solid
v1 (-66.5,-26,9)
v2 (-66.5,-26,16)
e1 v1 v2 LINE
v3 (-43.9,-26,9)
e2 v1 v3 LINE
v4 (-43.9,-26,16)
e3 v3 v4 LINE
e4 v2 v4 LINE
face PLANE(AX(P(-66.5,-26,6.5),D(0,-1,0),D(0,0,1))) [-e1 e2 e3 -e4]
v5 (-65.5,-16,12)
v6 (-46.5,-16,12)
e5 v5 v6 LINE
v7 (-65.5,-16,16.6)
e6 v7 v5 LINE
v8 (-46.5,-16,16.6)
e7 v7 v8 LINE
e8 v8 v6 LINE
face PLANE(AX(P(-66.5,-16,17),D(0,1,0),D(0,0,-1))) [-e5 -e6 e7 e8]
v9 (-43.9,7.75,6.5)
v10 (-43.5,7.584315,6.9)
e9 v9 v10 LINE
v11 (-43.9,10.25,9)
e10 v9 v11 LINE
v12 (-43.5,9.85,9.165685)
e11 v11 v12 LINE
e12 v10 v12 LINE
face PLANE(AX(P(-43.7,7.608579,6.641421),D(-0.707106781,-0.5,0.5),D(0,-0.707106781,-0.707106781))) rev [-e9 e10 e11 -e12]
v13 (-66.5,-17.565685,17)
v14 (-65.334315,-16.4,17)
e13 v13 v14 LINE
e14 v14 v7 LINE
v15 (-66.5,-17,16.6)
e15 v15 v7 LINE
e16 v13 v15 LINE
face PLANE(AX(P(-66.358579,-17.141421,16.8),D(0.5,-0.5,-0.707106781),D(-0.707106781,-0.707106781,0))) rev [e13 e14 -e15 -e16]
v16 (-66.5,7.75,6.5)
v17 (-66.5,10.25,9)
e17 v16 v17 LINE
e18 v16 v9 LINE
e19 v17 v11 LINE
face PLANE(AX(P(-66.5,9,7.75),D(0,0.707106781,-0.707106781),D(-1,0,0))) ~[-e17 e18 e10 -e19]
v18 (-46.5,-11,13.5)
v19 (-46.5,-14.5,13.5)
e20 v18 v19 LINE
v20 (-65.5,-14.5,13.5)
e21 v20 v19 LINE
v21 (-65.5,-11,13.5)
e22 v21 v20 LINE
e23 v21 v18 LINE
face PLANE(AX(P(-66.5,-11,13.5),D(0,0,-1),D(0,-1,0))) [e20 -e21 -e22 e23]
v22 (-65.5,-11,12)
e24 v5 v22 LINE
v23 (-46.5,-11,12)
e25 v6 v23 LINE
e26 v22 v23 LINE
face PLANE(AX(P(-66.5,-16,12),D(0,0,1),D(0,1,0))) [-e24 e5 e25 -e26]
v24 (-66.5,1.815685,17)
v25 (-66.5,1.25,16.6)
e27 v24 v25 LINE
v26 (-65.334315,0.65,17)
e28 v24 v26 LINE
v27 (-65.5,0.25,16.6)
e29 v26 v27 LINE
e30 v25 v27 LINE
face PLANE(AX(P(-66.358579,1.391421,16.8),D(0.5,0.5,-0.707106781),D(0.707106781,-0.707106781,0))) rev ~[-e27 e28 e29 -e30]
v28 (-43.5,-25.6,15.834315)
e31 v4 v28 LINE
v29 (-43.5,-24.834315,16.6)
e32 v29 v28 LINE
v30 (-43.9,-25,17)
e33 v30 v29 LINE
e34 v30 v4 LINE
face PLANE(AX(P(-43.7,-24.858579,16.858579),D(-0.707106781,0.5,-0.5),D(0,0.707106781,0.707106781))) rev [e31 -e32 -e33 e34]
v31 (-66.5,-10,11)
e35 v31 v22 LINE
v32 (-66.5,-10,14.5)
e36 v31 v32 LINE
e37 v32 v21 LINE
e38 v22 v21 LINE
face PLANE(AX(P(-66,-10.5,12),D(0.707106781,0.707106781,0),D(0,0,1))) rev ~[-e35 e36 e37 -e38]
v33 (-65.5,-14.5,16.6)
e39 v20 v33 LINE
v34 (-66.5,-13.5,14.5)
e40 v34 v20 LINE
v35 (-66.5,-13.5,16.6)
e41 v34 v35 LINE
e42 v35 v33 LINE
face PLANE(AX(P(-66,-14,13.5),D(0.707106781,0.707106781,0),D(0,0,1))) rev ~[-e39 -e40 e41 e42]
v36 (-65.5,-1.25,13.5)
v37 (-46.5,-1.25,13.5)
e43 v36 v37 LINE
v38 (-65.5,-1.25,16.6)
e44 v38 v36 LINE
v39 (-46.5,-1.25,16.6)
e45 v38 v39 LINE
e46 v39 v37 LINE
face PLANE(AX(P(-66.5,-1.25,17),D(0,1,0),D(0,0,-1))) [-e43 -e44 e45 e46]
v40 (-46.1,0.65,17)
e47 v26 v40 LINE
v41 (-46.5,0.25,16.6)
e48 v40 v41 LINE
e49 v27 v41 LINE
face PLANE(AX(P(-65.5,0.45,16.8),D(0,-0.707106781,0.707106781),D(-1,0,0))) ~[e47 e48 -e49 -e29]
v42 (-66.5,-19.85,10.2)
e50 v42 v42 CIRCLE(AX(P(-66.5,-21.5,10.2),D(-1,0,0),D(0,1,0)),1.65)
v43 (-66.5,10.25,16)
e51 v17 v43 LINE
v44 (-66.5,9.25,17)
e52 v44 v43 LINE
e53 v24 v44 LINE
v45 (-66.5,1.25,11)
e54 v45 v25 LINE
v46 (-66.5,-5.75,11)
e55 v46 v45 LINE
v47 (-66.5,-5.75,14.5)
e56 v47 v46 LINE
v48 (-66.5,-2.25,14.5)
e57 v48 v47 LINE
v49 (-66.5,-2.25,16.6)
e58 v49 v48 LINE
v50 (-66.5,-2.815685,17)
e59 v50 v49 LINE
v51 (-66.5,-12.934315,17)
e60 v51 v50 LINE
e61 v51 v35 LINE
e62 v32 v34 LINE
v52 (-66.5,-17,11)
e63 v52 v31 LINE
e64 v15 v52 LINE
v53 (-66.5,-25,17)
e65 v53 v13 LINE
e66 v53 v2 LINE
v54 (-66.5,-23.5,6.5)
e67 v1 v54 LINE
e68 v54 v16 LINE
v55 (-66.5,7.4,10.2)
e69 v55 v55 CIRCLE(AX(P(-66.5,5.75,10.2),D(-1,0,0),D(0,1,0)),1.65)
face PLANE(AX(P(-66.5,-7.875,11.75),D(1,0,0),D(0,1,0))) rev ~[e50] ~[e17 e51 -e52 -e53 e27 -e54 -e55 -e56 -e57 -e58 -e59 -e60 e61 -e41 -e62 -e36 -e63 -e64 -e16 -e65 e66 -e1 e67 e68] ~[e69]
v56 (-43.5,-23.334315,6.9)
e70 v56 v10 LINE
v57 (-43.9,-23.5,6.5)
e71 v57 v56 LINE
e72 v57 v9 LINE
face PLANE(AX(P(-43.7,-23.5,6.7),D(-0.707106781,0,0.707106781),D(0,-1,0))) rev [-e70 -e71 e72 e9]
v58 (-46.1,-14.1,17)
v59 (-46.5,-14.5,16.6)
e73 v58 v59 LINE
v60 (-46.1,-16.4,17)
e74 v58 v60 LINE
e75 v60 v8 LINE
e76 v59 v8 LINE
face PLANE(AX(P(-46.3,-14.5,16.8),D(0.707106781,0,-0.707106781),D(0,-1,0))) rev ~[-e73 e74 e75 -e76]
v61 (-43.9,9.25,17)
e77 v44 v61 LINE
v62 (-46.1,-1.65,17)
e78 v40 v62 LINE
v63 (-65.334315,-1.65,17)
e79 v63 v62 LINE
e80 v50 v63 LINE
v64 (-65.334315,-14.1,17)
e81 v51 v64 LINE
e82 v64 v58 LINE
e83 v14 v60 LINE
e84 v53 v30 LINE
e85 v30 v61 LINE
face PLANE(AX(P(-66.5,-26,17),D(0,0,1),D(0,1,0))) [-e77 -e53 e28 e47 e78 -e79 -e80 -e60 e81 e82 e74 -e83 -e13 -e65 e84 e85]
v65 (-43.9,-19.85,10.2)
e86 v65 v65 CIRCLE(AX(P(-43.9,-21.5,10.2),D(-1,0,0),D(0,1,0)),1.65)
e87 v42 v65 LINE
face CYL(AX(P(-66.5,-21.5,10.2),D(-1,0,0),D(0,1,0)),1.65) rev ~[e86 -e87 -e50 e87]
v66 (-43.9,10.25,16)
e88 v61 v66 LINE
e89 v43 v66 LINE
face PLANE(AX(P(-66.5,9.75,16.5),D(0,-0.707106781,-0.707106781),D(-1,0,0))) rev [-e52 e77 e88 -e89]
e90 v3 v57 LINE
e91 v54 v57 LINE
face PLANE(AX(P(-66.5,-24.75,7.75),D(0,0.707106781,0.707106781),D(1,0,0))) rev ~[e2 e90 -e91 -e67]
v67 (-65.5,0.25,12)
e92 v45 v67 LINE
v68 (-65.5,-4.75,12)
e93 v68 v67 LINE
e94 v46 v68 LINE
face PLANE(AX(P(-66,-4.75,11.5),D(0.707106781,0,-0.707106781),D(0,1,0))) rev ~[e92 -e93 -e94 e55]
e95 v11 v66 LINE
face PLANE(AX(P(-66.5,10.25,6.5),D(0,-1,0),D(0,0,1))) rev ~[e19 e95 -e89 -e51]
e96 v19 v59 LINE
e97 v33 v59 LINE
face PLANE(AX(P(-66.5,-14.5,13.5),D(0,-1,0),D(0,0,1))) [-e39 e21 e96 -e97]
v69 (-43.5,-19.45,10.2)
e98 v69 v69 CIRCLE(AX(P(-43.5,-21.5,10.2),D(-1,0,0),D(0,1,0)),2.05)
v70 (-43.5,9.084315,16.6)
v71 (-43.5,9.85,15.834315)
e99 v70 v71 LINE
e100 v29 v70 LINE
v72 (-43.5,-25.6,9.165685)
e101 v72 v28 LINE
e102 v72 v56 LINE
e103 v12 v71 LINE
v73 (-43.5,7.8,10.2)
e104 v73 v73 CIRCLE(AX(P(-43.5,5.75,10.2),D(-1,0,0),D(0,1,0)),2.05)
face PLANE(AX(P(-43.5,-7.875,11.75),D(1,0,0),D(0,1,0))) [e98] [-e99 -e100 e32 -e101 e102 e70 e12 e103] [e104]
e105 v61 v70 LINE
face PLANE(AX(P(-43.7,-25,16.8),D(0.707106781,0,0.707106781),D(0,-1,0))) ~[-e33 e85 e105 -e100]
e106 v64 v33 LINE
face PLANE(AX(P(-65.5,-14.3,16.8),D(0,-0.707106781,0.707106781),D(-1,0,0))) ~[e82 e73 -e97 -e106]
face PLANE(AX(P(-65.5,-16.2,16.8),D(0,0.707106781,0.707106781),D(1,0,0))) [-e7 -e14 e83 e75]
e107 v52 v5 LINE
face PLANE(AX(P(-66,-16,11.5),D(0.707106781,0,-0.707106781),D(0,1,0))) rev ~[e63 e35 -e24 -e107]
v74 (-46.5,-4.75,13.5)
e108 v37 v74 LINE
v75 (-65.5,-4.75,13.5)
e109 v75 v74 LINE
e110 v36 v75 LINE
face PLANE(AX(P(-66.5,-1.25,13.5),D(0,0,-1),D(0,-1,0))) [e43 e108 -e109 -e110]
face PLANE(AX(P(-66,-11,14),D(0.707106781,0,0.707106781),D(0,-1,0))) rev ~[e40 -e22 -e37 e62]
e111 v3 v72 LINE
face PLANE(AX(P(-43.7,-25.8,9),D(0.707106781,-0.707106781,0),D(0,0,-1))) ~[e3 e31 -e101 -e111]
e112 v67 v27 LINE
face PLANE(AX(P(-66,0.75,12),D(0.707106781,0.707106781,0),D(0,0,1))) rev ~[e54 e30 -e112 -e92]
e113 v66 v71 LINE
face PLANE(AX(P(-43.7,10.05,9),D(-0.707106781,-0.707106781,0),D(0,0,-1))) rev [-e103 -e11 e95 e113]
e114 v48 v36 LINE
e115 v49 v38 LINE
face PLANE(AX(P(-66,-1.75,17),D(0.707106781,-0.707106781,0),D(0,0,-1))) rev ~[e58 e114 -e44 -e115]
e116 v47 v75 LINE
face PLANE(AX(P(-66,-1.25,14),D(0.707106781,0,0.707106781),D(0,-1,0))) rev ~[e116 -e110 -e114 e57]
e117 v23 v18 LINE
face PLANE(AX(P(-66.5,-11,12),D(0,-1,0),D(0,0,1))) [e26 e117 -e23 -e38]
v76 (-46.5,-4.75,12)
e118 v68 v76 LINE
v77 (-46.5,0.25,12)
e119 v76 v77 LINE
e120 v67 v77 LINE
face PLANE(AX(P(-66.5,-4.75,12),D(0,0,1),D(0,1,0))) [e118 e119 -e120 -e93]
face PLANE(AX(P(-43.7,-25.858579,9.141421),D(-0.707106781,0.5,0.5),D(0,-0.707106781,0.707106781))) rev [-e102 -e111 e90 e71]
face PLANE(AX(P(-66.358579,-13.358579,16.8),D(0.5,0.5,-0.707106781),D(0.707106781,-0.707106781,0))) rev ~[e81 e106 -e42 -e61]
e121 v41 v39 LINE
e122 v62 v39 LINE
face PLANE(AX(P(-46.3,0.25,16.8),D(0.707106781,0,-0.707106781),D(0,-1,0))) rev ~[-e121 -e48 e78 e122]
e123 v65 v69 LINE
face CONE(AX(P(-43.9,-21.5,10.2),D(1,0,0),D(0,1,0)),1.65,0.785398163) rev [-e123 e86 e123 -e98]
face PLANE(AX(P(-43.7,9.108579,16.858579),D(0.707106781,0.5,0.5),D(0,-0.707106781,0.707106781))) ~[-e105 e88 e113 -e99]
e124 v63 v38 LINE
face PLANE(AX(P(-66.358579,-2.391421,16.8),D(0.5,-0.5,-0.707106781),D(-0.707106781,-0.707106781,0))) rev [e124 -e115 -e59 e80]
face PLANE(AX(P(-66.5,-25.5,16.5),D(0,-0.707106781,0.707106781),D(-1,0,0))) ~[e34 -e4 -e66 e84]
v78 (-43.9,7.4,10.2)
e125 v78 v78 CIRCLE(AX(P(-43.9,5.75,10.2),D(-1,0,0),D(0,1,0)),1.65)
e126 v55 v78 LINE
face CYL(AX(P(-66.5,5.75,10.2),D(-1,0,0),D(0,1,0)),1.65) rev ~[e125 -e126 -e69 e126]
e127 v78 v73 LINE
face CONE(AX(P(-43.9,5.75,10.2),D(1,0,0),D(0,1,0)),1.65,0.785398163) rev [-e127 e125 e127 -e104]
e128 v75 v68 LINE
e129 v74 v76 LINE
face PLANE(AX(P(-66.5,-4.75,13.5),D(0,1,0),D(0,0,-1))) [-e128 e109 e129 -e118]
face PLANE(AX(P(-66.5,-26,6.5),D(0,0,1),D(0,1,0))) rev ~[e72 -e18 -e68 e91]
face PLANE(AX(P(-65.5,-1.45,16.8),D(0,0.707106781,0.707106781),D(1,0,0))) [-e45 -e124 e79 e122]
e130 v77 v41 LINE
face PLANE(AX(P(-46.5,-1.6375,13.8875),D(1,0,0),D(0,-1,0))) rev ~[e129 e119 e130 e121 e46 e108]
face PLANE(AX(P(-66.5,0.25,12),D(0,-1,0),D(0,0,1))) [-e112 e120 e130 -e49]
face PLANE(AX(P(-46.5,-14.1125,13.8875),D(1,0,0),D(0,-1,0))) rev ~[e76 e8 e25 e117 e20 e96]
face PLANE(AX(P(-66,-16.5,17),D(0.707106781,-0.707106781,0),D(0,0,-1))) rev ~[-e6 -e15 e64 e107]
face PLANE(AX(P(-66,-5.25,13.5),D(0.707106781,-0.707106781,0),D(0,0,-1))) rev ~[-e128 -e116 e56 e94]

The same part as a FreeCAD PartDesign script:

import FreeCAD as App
import Part
import Sketcher
from FreeCAD import Vector


def edges_at(feature, points):
    """Names of the edges that pass closest to the given points."""
    edges = feature.Shape.Edges
    near = lambda p: min(range(len(edges)), key=lambda i: edges[i].distToShape(Part.Vertex(*p))[0])
    return sorted({f"Edge{near(p) + 1}" for p in points})


def add_polygon(sketch, points):
    """Adds a closed chain of lines whose ends are joined by coincident constraints."""
    first, n = sketch.GeometryCount, len(points)
    for a, b in zip(points, points[1:] + points[:1]):
        sketch.addGeometry(Part.LineSegment(App.Vector(*a, 0), App.Vector(*b, 0)), False)
    for i in range(n):
        sketch.addConstraint(Sketcher.Constraint("Coincident", first + i, 2, first + (i + 1) % n, 1))

doc = App.newDocument("Part")
params = doc.addObject("Spreadsheet::Sheet", "Params")
for row, (alias, value) in enumerate([
    ("sketch1_height", "10.5 mm"),
    ("sketch1_width", "36.25 mm"),
    ("pad1_length", "23 mm"),
    ("sketch2_diameter", "3.3 mm"),
    ("sketch3_width", "5 mm"),
    ("sketch3_width2", "1.5 mm"),
    ("pocket2_length", "20 mm"),
    ("chamfer_size", "1 mm"),
    ("chamfer2_size", "1 mm"),
    ("chamfer3_size", "2.5 mm"),
    ("chamfer4_size", "0.4 mm"),
    ("chamfer5_size", "0.4 mm"),
], start=1):
    params.set(f"A{row}", alias)
    params.set(f"B{row}", "=" + value)
    params.setAlias(f"B{row}", alias)

body = doc.addObject("PartDesign::Body", "Body")

# Sketch on YZ plane
sketch1 = body.newObject("Sketcher::SketchObject", "Sketch")
sketch1.AttachmentSupport = (doc.getObject("YZ_Plane"), [""])
sketch1.MapMode = "FlatFace"
add_polygon(sketch1, [(0, 10), (0, 0), (36, 0), (36, 10)])  # lines 0-3
sketch1.addConstraint(Sketcher.Constraint("Vertical", 0))
sketch1.addConstraint(Sketcher.Constraint("Horizontal", 1))
sketch1.addConstraint(Sketcher.Constraint("Vertical", 2))
sketch1.addConstraint(Sketcher.Constraint("Horizontal", 3))
sketch1.addConstraint(Sketcher.Constraint("Coincident", 0, 2, -1, 1))
sketch1.addConstraint(Sketcher.Constraint("DistanceY", 0, 2, 0, 1, 10.5))
sketch1.addConstraint(Sketcher.Constraint("DistanceX", 1, 1, 1, 2, 36.25))
sketch1.setExpression("Constraints[9]", "Params.sketch1_height")
sketch1.setExpression("Constraints[10]", "Params.sketch1_width")
pad1 = body.newObject("PartDesign::Pad", "Pad")
pad1.Profile = sketch1
pad1.setExpression("Length", "Params.pad1_length")

# Sketch on YZ plane
sketch2 = body.newObject("Sketcher::SketchObject", "Sketch001")
sketch2.AttachmentSupport = (doc.getObject("YZ_Plane"), [""])
sketch2.MapMode = "FlatFace"
sketch2.addGeometry(Part.Circle(Vector(4.5, 3.7, 0), Vector(0, 0, 1), 1.6), False)
sketch2.addGeometry(Part.Circle(Vector(31.8, 3.7, 0), Vector(0, 0, 1), 1.6), False)
sketch2.addConstraint(Sketcher.Constraint("Equal", 0, 1))
sketch2.addConstraint(Sketcher.Constraint("Horizontal", 0, 3, 1, 3))
sketch2.addConstraint(Sketcher.Constraint("Diameter", 0, 3.3))
sketch2.addConstraint(Sketcher.Constraint("DistanceX", -1, 1, 0, 3, 4.5))
sketch2.addConstraint(Sketcher.Constraint("DistanceY", -1, 1, 0, 3, 3.7))
sketch2.addConstraint(Sketcher.Constraint("DistanceX", -1, 1, 1, 3, 31.75))
sketch2.setExpression("Constraints[2]", "Params.sketch2_diameter")
pocket1 = body.newObject("PartDesign::Pocket", "Pocket")
pocket1.Profile = sketch2
pocket1.Type = "ThroughAll"
pocket1.Reversed = True

# Sketch on YZ plane
sketch3 = body.newObject("Sketcher::SketchObject", "Sketch002")
sketch3.AttachmentSupport = (doc.getObject("YZ_Plane"), [""])
sketch3.MapMode = "FlatFace"
add_polygon(sketch3, [(10, 5.5), (10, 10.5), (11.5, 10.5), (11.5, 7), (15, 7), (15, 5.5)])  # lines 0-5
add_polygon(sketch3, [(24.8, 7), (24.8, 10.5), (26.2, 10.5), (26.2, 5.5), (21.2, 5.5), (21.2, 7)])  # lines 6-11
sketch3.addConstraint(Sketcher.Constraint("Vertical", 0))
sketch3.addConstraint(Sketcher.Constraint("Horizontal", 1))
sketch3.addConstraint(Sketcher.Constraint("Vertical", 2))
sketch3.addConstraint(Sketcher.Constraint("Horizontal", 3))
sketch3.addConstraint(Sketcher.Constraint("Vertical", 4))
sketch3.addConstraint(Sketcher.Constraint("Horizontal", 5))
sketch3.addConstraint(Sketcher.Constraint("Vertical", 6))
sketch3.addConstraint(Sketcher.Constraint("Horizontal", 7))
sketch3.addConstraint(Sketcher.Constraint("Vertical", 8))
sketch3.addConstraint(Sketcher.Constraint("Horizontal", 9))
sketch3.addConstraint(Sketcher.Constraint("Vertical", 10))
sketch3.addConstraint(Sketcher.Constraint("Horizontal", 11))
sketch3.addConstraint(Sketcher.Constraint("Horizontal", 1, 2, 6, 2))
sketch3.addConstraint(Sketcher.Constraint("Horizontal", 5, 2, 8, 2))
sketch3.addConstraint(Sketcher.Constraint("Horizontal", 3, 2, 10, 2))
sketch3.addConstraint(Sketcher.Constraint("Equal", 1, 7))
sketch3.addConstraint(Sketcher.Constraint("Equal", 5, 9))
sketch3.addConstraint(Sketcher.Constraint("Equal", 9, 0))
sketch3.addConstraint(Sketcher.Constraint("Equal", 11, 2))
sketch3.addConstraint(Sketcher.Constraint("DistanceX", 5, 2, 5, 1, 5.0))
sketch3.addConstraint(Sketcher.Constraint("DistanceX", 1, 1, 1, 2, 1.5))
sketch3.addConstraint(Sketcher.Constraint("DistanceX", -1, 1, 0, 2, 10.0))
sketch3.addConstraint(Sketcher.Constraint("DistanceY", -1, 1, 2, 2, 7.0))
sketch3.addConstraint(Sketcher.Constraint("DistanceX", -1, 1, 6, 2, 24.75))
sketch3.setExpression("Constraints[31]", "Params.sketch3_width")
sketch3.setExpression("Constraints[32]", "Params.sketch3_width2")
pocket2 = body.newObject("PartDesign::Pocket", "Pocket001")
pocket2.Profile = sketch3
pocket2.setExpression("Length", "Params.pocket2_length")
pocket2.Reversed = True
doc.recompute()

chamfer = body.newObject("PartDesign::Chamfer", "Chamfer")
chamfer.Base = (pocket2, edges_at(pocket2, [
    (0, 26.25, 8),
    (0, 23.75, 5.5),
    (0, 21.25, 6.25),
    (0, 23, 7),
    (0, 24.75, 8.75),
    (0, 15, 6.25),
    (0, 13.25, 7),
    (0, 12.5, 5.5),
    (0, 10, 8),
    (0, 11.5, 8.75),
]))
chamfer.setExpression("Size", "Params.chamfer_size")
doc.recompute()

chamfer2 = body.newObject("PartDesign::Chamfer", "Chamfer001")
chamfer2.Base = (chamfer, edges_at(chamfer, [(11.5, 36.25, 10.5), (11.5, 0, 10.5)]))
chamfer2.setExpression("Size", "Params.chamfer2_size")
doc.recompute()

chamfer3 = body.newObject("PartDesign::Chamfer", "Chamfer002")
chamfer3.Base = (chamfer2, edges_at(chamfer2, [(11.5, 36.25, 0), (11.5, 0, 0)]))
chamfer3.setExpression("Size", "Params.chamfer3_size")
doc.recompute()

chamfer4 = body.newObject("PartDesign::Chamfer", "Chamfer003")
chamfer4.Base = (chamfer3, edges_at(chamfer3, [
    (10.5, 26.25, 10.5),
    (0.5, 26.75, 10.5),
    (0.5, 24.25, 10.5),
    (10.5, 24.75, 10.5),
    (20, 25.5, 10.5),
    (20, 10.75, 10.5),
    (10.5, 11.5, 10.5),
    (0.5, 12, 10.5),
    (0.5, 9.5, 10.5),
    (10.5, 10, 10.5),
]))
chamfer4.setExpression("Size", "Params.chamfer4_size")
doc.recompute()

chamfer5 = body.newObject("PartDesign::Chamfer", "Chamfer004")
chamfer5.Base = (chamfer4, edges_at(chamfer4, [
    (23, 0, 6),
    (23, 1.25, 1.25),
    (23, 0.5, 10),
    (23, 18.125, 0),
    (23, 18.125, 10.5),
    (23, 35, 1.25),
    (23, 35.75, 10),
    (23, 36.25, 6),
    (23, 30.1, 3.7),
    (23, 2.85, 3.7),
]))
chamfer5.setExpression("Size", "Params.chamfer5_size")
body2 = doc.addObject("PartDesign::Body", "Body001")
doc.recompute()

body.Placement = App.Placement(Vector(-66.5, -26, 6.5), App.Rotation(Vector(0, 0, 1), 0))
boolean = body2.newObject("PartDesign::Boolean", "Boolean")
boolean.Type = "Fuse"
boolean.addObjects([body])

doc.recompute()
